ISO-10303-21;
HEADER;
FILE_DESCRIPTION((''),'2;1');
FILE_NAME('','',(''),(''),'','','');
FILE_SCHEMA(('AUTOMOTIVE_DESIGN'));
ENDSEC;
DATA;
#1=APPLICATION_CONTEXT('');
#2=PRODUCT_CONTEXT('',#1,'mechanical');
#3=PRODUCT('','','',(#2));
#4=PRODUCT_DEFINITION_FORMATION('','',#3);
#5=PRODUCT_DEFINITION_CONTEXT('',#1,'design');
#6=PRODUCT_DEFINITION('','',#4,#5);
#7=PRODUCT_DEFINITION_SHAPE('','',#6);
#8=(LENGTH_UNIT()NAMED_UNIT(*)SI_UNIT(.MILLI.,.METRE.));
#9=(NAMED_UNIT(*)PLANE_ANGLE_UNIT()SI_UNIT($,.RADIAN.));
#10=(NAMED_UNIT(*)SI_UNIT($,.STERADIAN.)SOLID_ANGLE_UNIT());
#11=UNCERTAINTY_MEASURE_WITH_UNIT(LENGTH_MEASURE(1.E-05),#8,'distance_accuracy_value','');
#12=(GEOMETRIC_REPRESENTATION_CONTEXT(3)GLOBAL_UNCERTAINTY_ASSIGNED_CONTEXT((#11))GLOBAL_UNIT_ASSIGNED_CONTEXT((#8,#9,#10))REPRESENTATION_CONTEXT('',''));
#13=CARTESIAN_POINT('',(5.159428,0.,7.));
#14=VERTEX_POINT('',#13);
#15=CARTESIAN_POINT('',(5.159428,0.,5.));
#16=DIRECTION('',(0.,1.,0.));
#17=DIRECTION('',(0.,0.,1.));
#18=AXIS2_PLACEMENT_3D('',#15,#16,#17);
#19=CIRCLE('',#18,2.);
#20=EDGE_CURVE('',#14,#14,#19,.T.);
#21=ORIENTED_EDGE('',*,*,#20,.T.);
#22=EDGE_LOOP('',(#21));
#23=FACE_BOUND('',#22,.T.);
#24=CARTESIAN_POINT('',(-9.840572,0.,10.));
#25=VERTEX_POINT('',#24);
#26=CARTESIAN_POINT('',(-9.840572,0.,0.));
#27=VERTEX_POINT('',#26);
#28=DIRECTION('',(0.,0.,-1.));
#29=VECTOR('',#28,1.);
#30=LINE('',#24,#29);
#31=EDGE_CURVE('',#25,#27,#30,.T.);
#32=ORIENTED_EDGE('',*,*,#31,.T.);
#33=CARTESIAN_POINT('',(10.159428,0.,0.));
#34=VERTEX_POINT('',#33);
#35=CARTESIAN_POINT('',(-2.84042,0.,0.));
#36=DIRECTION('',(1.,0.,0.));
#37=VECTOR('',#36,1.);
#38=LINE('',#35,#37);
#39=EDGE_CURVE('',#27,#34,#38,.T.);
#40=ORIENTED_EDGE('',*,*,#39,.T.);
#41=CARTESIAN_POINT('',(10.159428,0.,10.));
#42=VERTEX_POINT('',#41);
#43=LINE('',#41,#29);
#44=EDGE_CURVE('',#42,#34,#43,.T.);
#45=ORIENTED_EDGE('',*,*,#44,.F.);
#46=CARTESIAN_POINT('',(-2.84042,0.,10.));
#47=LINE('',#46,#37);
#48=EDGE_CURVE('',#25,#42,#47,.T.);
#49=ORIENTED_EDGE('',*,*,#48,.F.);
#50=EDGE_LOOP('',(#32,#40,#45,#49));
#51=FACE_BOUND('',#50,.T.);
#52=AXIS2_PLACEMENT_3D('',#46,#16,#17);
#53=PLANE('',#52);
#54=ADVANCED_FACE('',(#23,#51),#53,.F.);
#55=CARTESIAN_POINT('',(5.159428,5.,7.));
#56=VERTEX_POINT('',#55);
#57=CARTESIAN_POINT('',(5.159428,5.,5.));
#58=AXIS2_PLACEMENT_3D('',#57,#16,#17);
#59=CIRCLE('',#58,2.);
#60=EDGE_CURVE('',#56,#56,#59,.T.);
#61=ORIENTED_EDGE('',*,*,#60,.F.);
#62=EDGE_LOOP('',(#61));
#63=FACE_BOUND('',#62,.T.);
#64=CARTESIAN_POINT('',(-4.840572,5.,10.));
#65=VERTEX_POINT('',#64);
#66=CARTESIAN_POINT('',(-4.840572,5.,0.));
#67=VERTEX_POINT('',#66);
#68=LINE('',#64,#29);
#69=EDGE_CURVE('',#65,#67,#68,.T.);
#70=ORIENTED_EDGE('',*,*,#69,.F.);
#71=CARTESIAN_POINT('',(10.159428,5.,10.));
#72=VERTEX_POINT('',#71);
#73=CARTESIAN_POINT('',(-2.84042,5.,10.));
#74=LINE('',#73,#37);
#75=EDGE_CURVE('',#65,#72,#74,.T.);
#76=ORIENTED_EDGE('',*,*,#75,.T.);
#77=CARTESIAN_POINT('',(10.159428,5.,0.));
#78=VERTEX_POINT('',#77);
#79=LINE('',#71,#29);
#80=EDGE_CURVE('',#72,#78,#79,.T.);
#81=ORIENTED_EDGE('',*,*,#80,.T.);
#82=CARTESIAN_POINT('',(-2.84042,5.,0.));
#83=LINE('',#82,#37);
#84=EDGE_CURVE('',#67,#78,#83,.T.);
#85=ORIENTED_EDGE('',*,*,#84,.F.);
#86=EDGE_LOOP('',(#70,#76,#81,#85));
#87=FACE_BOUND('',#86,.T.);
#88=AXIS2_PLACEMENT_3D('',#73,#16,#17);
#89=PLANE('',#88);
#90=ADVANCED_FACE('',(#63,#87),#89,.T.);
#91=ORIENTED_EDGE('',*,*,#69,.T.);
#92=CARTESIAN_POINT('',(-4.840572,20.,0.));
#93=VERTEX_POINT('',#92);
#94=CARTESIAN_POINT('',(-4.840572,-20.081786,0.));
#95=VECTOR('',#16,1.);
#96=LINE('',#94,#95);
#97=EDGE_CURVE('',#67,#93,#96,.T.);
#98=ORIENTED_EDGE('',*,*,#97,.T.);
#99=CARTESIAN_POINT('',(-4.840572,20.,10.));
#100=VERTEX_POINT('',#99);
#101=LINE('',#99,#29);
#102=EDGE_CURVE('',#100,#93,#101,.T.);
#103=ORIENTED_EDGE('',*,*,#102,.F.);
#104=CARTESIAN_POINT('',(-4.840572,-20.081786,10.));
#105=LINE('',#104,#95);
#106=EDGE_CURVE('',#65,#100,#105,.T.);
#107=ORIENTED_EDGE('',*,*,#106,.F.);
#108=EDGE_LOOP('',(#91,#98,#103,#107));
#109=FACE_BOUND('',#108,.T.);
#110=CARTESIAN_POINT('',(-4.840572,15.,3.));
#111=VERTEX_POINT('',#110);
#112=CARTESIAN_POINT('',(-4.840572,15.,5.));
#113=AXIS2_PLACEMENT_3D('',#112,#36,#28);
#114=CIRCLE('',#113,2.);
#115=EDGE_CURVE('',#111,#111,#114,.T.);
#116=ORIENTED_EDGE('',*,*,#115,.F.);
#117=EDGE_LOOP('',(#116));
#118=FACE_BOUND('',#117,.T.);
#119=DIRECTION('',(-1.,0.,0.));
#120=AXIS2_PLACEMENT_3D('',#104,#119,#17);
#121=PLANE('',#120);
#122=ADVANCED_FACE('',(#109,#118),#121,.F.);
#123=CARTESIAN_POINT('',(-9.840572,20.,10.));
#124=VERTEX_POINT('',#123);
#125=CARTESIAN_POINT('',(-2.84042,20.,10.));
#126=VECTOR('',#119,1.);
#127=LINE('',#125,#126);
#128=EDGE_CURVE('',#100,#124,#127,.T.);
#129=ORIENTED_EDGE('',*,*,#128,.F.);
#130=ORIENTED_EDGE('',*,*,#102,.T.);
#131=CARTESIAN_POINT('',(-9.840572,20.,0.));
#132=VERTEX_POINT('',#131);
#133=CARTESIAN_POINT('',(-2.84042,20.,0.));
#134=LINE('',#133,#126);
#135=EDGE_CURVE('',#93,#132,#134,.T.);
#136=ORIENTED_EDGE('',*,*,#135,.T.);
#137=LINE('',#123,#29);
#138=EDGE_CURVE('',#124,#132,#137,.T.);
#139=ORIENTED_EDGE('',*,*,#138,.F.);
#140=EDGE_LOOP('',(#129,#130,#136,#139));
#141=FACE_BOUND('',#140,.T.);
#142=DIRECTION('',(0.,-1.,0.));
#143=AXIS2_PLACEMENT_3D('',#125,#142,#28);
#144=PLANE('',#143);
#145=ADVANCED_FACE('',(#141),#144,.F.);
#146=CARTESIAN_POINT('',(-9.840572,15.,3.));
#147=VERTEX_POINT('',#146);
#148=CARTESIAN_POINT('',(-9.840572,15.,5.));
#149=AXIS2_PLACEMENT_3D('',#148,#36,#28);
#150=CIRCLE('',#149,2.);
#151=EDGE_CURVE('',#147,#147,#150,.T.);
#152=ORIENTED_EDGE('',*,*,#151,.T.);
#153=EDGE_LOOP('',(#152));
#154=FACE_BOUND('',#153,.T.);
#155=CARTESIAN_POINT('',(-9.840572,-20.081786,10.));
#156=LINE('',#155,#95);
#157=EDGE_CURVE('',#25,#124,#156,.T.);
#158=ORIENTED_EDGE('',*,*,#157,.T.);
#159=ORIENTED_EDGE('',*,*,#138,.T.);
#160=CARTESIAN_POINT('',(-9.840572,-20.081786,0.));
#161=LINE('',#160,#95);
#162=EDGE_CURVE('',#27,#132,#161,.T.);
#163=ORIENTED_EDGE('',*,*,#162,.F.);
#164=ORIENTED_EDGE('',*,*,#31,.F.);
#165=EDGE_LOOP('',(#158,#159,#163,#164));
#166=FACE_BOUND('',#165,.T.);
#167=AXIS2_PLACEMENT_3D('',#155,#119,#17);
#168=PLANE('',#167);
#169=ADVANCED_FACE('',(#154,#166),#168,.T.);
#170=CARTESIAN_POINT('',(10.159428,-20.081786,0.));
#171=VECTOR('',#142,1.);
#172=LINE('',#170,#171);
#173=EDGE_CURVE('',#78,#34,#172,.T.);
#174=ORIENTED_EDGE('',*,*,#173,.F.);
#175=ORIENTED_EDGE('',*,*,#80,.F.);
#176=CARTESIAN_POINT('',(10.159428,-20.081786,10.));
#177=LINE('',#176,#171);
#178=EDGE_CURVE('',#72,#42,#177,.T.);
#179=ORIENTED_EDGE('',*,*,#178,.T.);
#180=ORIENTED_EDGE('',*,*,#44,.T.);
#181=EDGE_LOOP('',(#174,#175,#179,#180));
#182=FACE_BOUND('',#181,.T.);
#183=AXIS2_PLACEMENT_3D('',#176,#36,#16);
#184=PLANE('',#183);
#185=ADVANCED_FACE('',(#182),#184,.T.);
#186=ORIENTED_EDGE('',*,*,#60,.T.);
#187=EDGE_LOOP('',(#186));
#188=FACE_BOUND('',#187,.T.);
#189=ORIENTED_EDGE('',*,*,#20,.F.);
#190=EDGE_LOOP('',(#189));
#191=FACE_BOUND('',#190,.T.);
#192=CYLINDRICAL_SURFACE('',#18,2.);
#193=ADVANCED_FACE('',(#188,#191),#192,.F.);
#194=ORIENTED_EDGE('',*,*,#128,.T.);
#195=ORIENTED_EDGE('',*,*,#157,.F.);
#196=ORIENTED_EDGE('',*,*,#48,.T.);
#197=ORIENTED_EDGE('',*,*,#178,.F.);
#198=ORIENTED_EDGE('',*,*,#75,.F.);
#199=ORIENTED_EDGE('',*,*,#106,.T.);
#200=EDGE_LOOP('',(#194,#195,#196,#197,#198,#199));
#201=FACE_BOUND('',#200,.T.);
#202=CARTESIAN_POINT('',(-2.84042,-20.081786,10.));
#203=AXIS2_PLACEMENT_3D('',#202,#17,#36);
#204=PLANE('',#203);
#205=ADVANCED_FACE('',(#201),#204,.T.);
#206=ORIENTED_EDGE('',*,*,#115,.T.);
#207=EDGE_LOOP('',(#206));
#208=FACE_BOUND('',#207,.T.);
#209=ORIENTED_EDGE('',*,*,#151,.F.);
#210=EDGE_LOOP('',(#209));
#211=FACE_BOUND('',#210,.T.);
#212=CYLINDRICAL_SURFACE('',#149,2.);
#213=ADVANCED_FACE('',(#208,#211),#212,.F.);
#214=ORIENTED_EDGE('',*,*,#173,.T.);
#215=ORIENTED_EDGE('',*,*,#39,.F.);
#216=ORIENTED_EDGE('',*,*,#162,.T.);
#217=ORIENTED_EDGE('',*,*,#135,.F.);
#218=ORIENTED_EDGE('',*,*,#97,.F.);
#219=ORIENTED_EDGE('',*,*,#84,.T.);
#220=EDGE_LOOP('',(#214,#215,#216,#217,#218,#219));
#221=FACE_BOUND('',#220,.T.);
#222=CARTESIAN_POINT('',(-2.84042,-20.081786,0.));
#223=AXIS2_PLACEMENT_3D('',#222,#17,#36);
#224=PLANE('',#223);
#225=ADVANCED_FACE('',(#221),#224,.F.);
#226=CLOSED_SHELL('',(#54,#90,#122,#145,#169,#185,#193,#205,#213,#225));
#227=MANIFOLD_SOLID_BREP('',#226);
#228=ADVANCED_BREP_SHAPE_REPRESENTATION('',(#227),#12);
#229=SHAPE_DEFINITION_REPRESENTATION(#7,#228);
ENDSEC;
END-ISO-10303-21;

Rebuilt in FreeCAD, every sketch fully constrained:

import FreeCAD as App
import Part
import Sketcher

V = App.Vector
Q = App.Units.Quantity

doc = App.newDocument("Part")
body = doc.addObject("PartDesign::Body", "Body")

sketch1 = doc.addObject("Sketcher::SketchObject", "Sketch")
body.addObject(sketch1)
sketch1.AttachmentSupport = (doc.XY_Plane, [""])
sketch1.MapMode = "FlatFace"
sketch1.addGeometry(Part.LineSegment(V(-9.8, 20, 0), V(-9.8, 0, 0)), False)
sketch1.addGeometry(Part.LineSegment(V(-9.8, 0, 0), V(10.2, 0, 0)), False)
sketch1.addGeometry(Part.LineSegment(V(10.2, 0, 0), V(10.2, 5, 0)), False)
sketch1.addGeometry(Part.LineSegment(V(10.2, 5, 0), V(-4.8, 5, 0)), False)
sketch1.addGeometry(Part.LineSegment(V(-4.8, 5, 0), V(-4.8, 20, 0)), False)
sketch1.addGeometry(Part.LineSegment(V(-4.8, 20, 0), V(-9.8, 20, 0)), False)
sketch1.addConstraint(Sketcher.Constraint("Coincident", 0, 2, 1, 1))
sketch1.addConstraint(Sketcher.Constraint("Coincident", 1, 2, 2, 1))
sketch1.addConstraint(Sketcher.Constraint("Coincident", 2, 2, 3, 1))
sketch1.addConstraint(Sketcher.Constraint("Coincident", 3, 2, 4, 1))
sketch1.addConstraint(Sketcher.Constraint("Coincident", 4, 2, 5, 1))
sketch1.addConstraint(Sketcher.Constraint("Coincident", 5, 2, 0, 1))
sketch1.addConstraint(Sketcher.Constraint("Vertical", 0))
sketch1.addConstraint(Sketcher.Constraint("Horizontal", 1))
sketch1.addConstraint(Sketcher.Constraint("Vertical", 2))
sketch1.addConstraint(Sketcher.Constraint("Horizontal", 3))
sketch1.addConstraint(Sketcher.Constraint("Vertical", 4))
sketch1.addConstraint(Sketcher.Constraint("Horizontal", 5))
sketch1.addConstraint(Sketcher.Constraint("PointOnObject", 0, 2, -1))
sketch1.addConstraint(Sketcher.Constraint("Equal", 1, 0))
sketch1.addConstraint(Sketcher.Constraint("Equal", 5, 2))
sketch1.addConstraint(Sketcher.Constraint("DistanceX", 1, 1, 1, 2, Q("20 mm")))
sketch1.addConstraint(Sketcher.Constraint("DistanceX", 3, 2, 3, 1, Q("15 mm")))
sketch1.addConstraint(Sketcher.Constraint("DistanceX", 0, 2, -1, 1, Q("9.840572 mm")))
pad1 = doc.addObject("PartDesign::Pad", "Pad")
body.addObject(pad1)
pad1.Profile = sketch1
pad1.Length = 10

sketch2 = doc.addObject("Sketcher::SketchObject", "Sketch001")
body.addObject(sketch2)
sketch2.AttachmentSupport = (doc.XZ_Plane, [""])
sketch2.MapMode = "FlatFace"
sketch2.AttachmentOffset = App.Placement(V(0, 0, -5), App.Rotation())
sketch2.addGeometry(Part.Circle(V(5.2, 5, 0), V(0, 0, 1), 2), False)
sketch2.addConstraint(Sketcher.Constraint("Diameter", 0, Q("4 mm")))
sketch2.addConstraint(Sketcher.Constraint("DistanceY", -1, 1, 0, 3, Q("5 mm")))
sketch2.addConstraint(Sketcher.Constraint("DistanceX", -1, 1, 0, 3, Q("5.159428 mm")))
pocket1 = doc.addObject("PartDesign::Pocket", "Pocket")
body.addObject(pocket1)
pocket1.Profile = sketch2
pocket1.Type = "ThroughAll"
pocket1.Reversed = True

sketch3 = doc.addObject("Sketcher::SketchObject", "Sketch002")
body.addObject(sketch3)
sketch3.AttachmentSupport = (doc.YZ_Plane, [""])
sketch3.MapMode = "FlatFace"
sketch3.AttachmentOffset = App.Placement(V(0, 0, -4.840572), App.Rotation())
sketch3.addGeometry(Part.Circle(V(15, 5, 0), V(0, 0, 1), 2), False)
sketch3.addConstraint(Sketcher.Constraint("Diameter", 0, Q("4 mm")))
sketch3.addConstraint(Sketcher.Constraint("DistanceX", -1, 1, 0, 3, Q("15 mm")))
sketch3.addConstraint(Sketcher.Constraint("DistanceY", -1, 1, 0, 3, Q("5 mm")))
pocket2 = doc.addObject("PartDesign::Pocket", "Pocket001")
body.addObject(pocket2)
pocket2.Profile = sketch3
pocket2.Type = "ThroughAll"

doc.recompute()
